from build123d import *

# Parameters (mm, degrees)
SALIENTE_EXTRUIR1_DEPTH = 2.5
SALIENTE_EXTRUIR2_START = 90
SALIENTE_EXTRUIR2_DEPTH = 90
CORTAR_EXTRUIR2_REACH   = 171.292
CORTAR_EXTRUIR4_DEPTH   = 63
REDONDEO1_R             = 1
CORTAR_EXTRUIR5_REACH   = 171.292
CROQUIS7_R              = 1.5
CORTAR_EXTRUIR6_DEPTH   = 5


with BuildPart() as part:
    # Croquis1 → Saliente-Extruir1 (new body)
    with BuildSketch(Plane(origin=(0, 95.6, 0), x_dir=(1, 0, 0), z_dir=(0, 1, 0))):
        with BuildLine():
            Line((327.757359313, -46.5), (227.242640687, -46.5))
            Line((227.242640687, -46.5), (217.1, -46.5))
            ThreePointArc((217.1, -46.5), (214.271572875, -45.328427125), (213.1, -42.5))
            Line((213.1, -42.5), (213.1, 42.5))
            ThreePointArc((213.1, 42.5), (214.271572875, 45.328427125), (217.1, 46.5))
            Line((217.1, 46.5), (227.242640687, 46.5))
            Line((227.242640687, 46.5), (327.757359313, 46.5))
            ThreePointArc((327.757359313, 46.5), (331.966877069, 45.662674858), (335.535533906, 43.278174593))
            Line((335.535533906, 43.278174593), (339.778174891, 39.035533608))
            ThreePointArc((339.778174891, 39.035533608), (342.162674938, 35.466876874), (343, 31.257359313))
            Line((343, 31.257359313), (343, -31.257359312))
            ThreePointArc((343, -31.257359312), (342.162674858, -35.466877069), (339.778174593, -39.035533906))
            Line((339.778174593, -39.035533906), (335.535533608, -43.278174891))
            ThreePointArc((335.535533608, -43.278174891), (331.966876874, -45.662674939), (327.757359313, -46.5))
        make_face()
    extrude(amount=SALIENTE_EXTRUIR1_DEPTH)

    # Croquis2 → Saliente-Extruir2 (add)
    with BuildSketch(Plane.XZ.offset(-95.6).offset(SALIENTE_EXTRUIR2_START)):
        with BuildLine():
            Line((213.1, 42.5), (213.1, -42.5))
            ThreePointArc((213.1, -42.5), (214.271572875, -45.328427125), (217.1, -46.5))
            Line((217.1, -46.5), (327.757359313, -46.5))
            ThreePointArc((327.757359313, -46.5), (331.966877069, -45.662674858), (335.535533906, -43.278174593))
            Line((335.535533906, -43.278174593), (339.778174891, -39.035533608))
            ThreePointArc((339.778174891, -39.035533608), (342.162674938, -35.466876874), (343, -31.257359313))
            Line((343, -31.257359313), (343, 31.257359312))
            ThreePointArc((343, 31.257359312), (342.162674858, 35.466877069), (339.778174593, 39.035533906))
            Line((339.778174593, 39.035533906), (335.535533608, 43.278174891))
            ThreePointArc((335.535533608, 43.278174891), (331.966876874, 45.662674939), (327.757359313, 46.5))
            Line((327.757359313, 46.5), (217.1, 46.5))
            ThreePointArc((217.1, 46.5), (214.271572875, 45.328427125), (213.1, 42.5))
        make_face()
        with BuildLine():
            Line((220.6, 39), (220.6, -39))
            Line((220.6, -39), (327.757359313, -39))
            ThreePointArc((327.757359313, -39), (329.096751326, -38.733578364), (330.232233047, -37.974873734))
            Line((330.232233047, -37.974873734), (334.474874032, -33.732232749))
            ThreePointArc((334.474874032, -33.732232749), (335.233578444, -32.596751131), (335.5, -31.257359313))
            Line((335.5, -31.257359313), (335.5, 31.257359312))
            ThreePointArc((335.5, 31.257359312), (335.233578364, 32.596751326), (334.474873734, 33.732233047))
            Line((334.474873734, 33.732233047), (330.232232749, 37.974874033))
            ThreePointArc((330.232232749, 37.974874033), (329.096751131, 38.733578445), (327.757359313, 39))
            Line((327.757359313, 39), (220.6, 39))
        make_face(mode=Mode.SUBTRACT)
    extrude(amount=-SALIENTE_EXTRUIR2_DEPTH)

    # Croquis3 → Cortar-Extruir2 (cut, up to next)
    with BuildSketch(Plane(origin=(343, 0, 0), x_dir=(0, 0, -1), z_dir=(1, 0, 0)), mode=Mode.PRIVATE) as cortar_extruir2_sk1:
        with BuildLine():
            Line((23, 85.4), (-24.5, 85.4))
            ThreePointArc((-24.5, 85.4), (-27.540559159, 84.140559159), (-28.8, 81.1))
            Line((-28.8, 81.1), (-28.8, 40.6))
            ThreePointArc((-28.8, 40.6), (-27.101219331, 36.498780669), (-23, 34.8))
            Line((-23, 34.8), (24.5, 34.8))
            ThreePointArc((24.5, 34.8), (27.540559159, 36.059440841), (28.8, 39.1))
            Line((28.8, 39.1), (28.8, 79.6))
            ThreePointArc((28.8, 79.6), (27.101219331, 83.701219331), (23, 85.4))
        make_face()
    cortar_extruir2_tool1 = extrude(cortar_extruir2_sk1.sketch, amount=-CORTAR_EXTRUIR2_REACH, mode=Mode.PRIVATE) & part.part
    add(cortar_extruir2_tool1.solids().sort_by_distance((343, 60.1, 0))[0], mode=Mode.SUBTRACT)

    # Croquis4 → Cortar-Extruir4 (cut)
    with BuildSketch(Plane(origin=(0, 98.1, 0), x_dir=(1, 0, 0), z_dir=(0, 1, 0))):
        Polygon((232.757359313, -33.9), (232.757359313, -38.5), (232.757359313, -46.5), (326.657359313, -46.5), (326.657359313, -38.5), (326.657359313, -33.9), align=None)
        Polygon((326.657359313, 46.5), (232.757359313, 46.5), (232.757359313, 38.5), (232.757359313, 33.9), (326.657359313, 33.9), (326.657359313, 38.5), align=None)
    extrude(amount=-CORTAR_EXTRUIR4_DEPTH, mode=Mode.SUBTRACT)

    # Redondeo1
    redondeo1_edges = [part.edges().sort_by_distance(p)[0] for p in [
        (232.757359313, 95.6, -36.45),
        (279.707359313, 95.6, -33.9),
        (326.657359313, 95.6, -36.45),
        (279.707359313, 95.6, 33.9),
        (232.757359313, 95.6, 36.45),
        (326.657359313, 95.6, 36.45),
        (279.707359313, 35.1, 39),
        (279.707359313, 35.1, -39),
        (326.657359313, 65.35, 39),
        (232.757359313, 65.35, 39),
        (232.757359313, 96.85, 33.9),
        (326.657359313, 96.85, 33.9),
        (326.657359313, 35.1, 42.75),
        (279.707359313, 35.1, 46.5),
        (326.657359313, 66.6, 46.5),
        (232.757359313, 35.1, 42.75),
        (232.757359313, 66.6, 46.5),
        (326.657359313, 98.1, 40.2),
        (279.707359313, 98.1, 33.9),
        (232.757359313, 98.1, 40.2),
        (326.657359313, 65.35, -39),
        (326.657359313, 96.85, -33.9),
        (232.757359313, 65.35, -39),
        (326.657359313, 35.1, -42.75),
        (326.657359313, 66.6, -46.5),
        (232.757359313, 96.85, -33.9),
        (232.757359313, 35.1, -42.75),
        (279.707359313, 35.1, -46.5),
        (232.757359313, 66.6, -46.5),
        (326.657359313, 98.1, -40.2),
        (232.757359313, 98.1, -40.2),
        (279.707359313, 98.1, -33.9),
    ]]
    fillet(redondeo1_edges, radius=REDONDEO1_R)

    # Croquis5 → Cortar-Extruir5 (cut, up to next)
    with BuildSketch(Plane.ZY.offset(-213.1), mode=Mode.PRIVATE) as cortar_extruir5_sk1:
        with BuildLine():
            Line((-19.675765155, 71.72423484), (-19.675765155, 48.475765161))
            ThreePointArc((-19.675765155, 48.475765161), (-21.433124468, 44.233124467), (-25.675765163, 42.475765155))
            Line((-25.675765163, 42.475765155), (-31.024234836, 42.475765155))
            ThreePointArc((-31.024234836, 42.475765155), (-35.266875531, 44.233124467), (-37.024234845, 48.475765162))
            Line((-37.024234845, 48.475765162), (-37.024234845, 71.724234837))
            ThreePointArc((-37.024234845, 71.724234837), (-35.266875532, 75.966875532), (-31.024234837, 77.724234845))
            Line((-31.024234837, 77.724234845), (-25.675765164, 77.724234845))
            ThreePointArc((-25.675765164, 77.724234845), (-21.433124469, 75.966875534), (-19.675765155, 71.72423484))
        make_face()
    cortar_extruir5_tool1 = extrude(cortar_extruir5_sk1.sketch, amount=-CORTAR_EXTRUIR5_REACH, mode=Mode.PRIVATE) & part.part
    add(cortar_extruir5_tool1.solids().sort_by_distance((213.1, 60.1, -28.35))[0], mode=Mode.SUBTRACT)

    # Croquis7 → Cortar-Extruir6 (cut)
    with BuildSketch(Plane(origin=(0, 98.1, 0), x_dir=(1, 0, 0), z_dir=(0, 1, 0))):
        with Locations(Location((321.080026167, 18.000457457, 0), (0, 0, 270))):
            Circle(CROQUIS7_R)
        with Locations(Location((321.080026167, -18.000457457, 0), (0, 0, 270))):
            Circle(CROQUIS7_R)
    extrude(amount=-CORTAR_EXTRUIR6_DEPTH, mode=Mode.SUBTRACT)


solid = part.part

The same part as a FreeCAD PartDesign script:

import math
import FreeCAD as App
import Part
import Sketcher

V = App.Vector
Q = App.Units.Quantity


def edges_at(feature, points):
    """Names of the edges that pass closest to the given points."""
    edges = feature.Shape.Edges
    near = lambda p: min(range(len(edges)), key=lambda i: edges[i].distToShape(Part.Vertex(*p))[0])
    return sorted({f"Edge{near(p) + 1}" for p in points})

doc = App.newDocument("Part")
body = doc.addObject("PartDesign::Body", "Body")

# Sketch on XZ plane
sketch1 = body.newObject("Sketcher::SketchObject", "Sketch")
sketch1.AttachmentSupport = (doc.getObject("XZ_Plane"), [""])
sketch1.MapMode = "FlatFace"
sketch1.AttachmentOffset = App.Placement(V(0, 0, -95.6), App.Rotation())
sketch1.addGeometry([
    Part.LineSegment(V(217.1, 46.5, 0), V(327.8, 46.5, 0)),  # 0
    Part.ArcOfCircle(Part.Circle(V(327.8, 35.5, 0), V(0, 0, 1), 11), math.radians(45), math.radians(90)),  # 1
    Part.LineSegment(V(335.5, 43.3, 0), V(339.8, 39, 0)),  # 2
    Part.ArcOfCircle(Part.Circle(V(332, 31.3, 0), V(0, 0, 1), 11), math.radians(0), math.radians(45)),  # 3
    Part.LineSegment(V(343, 31.3, 0), V(343, -31.3, 0)),  # 4
    Part.ArcOfCircle(Part.Circle(V(332, -31.3, 0), V(0, 0, 1), 11), math.radians(-45), math.radians(0)),  # 5
    Part.LineSegment(V(339.8, -39, 0), V(335.5, -43.3, 0)),  # 6
    Part.ArcOfCircle(Part.Circle(V(327.8, -35.5, 0), V(0, 0, 1), 11), math.radians(-90), math.radians(-45)),  # 7
    Part.LineSegment(V(327.8, -46.5, 0), V(217.1, -46.5, 0)),  # 8
    Part.ArcOfCircle(Part.Circle(V(217.1, -42.5, 0), V(0, 0, 1), 4), math.radians(180), math.radians(270)),  # 9
    Part.LineSegment(V(213.1, -42.5, 0), V(213.1, 42.5, 0)),  # 10
    Part.ArcOfCircle(Part.Circle(V(217.1, 42.5, 0), V(0, 0, 1), 4), math.radians(90), math.radians(180)),  # 11
], False)
sketch1.addConstraint([
    Sketcher.Constraint("Tangent", 0, 2, 1, 2),
    Sketcher.Constraint("Tangent", 1, 1, 2, 1),
    Sketcher.Constraint("Tangent", 2, 2, 3, 2),
    Sketcher.Constraint("Tangent", 3, 1, 4, 1),
    Sketcher.Constraint("Tangent", 4, 2, 5, 2),
    Sketcher.Constraint("Tangent", 5, 1, 6, 1),
    Sketcher.Constraint("Tangent", 6, 2, 7, 2),
    Sketcher.Constraint("Tangent", 7, 1, 8, 1),
    Sketcher.Constraint("Tangent", 8, 2, 9, 2),
    Sketcher.Constraint("Tangent", 9, 1, 10, 1),
    Sketcher.Constraint("Tangent", 10, 2, 11, 2),
    Sketcher.Constraint("Tangent", 11, 1, 0, 1),
    Sketcher.Constraint("Horizontal", 0),
    Sketcher.Constraint("Vertical", 4),
    Sketcher.Constraint("Horizontal", 8),
    Sketcher.Constraint("Vertical", 10),
    Sketcher.Constraint("Equal", 1, 3),
    Sketcher.Constraint("Equal", 3, 5),
    Sketcher.Constraint("Equal", 5, 7),
    Sketcher.Constraint("Equal", 9, 11),
    Sketcher.Constraint("Symmetric", 1, 3, 7, 3, -1),
    Sketcher.Constraint("Perpendicular", 2, 6),
    Sketcher.Constraint("Vertical", 2, 2, 5, 1),
    Sketcher.Constraint("Radius", 1, Q("11 mm")),
    Sketcher.Constraint("Radius", 9, Q("4 mm")),
    Sketcher.Constraint("DistanceY", 10, 1, 10, 2, Q("85 mm")),
    Sketcher.Constraint("Distance", 2, Q("6 mm")),
    Sketcher.Constraint("DistanceX", -1, 1, 3, 3, Q("332 mm")),
    Sketcher.Constraint("DistanceX", -1, 1, 9, 3, Q("217.1 mm")),
])
pad1 = body.newObject("PartDesign::Pad", "Pad")
pad1.Profile = sketch1
pad1.Length = 2.5
pad1.Reversed = True

# Sketch on XZ plane
sketch2 = body.newObject("Sketcher::SketchObject", "Sketch001")
sketch2.AttachmentSupport = (doc.getObject("XZ_Plane"), [""])
sketch2.MapMode = "FlatFace"
sketch2.AttachmentOffset = App.Placement(V(0, 0, -5.6), App.Rotation())
sketch2.addGeometry([
    Part.LineSegment(V(213.1, 42.5, 0), V(213.1, -42.5, 0)),  # 0
    Part.ArcOfCircle(Part.Circle(V(217.1, -42.5, 0), V(0, 0, 1), 4), math.radians(180), math.radians(270)),  # 1
    Part.LineSegment(V(217.1, -46.5, 0), V(327.8, -46.5, 0)),  # 2
    Part.ArcOfCircle(Part.Circle(V(327.8, -35.5, 0), V(0, 0, 1), 11), math.radians(-90), math.radians(-45)),  # 3
    Part.LineSegment(V(335.5, -43.3, 0), V(339.8, -39, 0)),  # 4
    Part.ArcOfCircle(Part.Circle(V(332, -31.3, 0), V(0, 0, 1), 11), math.radians(-45), math.radians(0)),  # 5
    Part.LineSegment(V(343, -31.3, 0), V(343, 31.3, 0)),  # 6
    Part.ArcOfCircle(Part.Circle(V(332, 31.3, 0), V(0, 0, 1), 11), math.radians(0), math.radians(45)),  # 7
    Part.LineSegment(V(339.8, 39, 0), V(335.5, 43.3, 0)),  # 8
    Part.ArcOfCircle(Part.Circle(V(327.8, 35.5, 0), V(0, 0, 1), 11), math.radians(45), math.radians(90)),  # 9
    Part.LineSegment(V(327.8, 46.5, 0), V(217.1, 46.5, 0)),  # 10
    Part.ArcOfCircle(Part.Circle(V(217.1, 42.5, 0), V(0, 0, 1), 4), math.radians(90), math.radians(180)),  # 11
    Part.LineSegment(V(220.6, -39, 0), V(220.6, 39, 0)),  # 12
    Part.LineSegment(V(220.6, 39, 0), V(327.8, 39, 0)),  # 13
    Part.ArcOfCircle(Part.Circle(V(327.8, 35.5, 0), V(0, 0, 1), 3.5), math.radians(45), math.radians(90)),  # 14
    Part.LineSegment(V(330.2, 38, 0), V(334.5, 33.7, 0)),  # 15
    Part.ArcOfCircle(Part.Circle(V(332, 31.3, 0), V(0, 0, 1), 3.5), math.radians(0), math.radians(45)),  # 16
    Part.LineSegment(V(335.5, 31.3, 0), V(335.5, -31.3, 0)),  # 17
    Part.ArcOfCircle(Part.Circle(V(332, -31.3, 0), V(0, 0, 1), 3.5), math.radians(-45), math.radians(0)),  # 18
    Part.LineSegment(V(334.5, -33.7, 0), V(330.2, -38, 0)),  # 19
    Part.ArcOfCircle(Part.Circle(V(327.8, -35.5, 0), V(0, 0, 1), 3.5), math.radians(-90), math.radians(-45)),  # 20
    Part.LineSegment(V(327.8, -39, 0), V(220.6, -39, 0)),  # 21
], False)
sketch2.addConstraint([
    Sketcher.Constraint("Tangent", 0, 2, 1, 1),
    Sketcher.Constraint("Tangent", 1, 2, 2, 1),
    Sketcher.Constraint("Tangent", 2, 2, 3, 1),
    Sketcher.Constraint("Tangent", 3, 2, 4, 1),
    Sketcher.Constraint("Tangent", 4, 2, 5, 1),
    Sketcher.Constraint("Tangent", 5, 2, 6, 1),
    Sketcher.Constraint("Tangent", 6, 2, 7, 1),
    Sketcher.Constraint("Tangent", 7, 2, 8, 1),
    Sketcher.Constraint("Tangent", 8, 2, 9, 1),
    Sketcher.Constraint("Tangent", 9, 2, 10, 1),
    Sketcher.Constraint("Tangent", 10, 2, 11, 1),
    Sketcher.Constraint("Tangent", 11, 2, 0, 1),
    Sketcher.Constraint("Coincident", 12, 2, 13, 1),
    Sketcher.Constraint("Tangent", 13, 2, 14, 2),
    Sketcher.Constraint("Tangent", 14, 1, 15, 1),
    Sketcher.Constraint("Tangent", 15, 2, 16, 2),
    Sketcher.Constraint("Tangent", 16, 1, 17, 1),
    Sketcher.Constraint("Tangent", 17, 2, 18, 2),
    Sketcher.Constraint("Tangent", 18, 1, 19, 1),
    Sketcher.Constraint("Tangent", 19, 2, 20, 2),
    Sketcher.Constraint("Tangent", 20, 1, 21, 1),
    Sketcher.Constraint("Coincident", 21, 2, 12, 1),
    Sketcher.Constraint("Vertical", 0),
    Sketcher.Constraint("Horizontal", 2),
    Sketcher.Constraint("Vertical", 6),
    Sketcher.Constraint("Horizontal", 10),
    Sketcher.Constraint("Vertical", 12),
    Sketcher.Constraint("Horizontal", 13),
    Sketcher.Constraint("Vertical", 17),
    Sketcher.Constraint("Horizontal", 21),
    Sketcher.Constraint("Coincident", 14, 3, 9, 3),
    Sketcher.Constraint("Coincident", 16, 3, 7, 3),
    Sketcher.Constraint("Coincident", 18, 3, 5, 3),
    Sketcher.Constraint("Coincident", 20, 3, 3, 3),
    Sketcher.Constraint("Equal", 3, 5),
    Sketcher.Constraint("Equal", 5, 7),
    Sketcher.Constraint("Equal", 7, 9),
    Sketcher.Constraint("Equal", 1, 11),
    Sketcher.Constraint("Equal", 14, 16),
    Sketcher.Constraint("Equal", 18, 20),
    Sketcher.Constraint("Symmetric", 3, 3, 9, 3, -1),
    Sketcher.Constraint("Perpendicular", 4, 8),
    Sketcher.Constraint("Vertical", 4, 2, 7, 2),
    Sketcher.Constraint("Radius", 1, Q("4 mm")),
    Sketcher.Constraint("Radius", 3, Q("11 mm")),
    Sketcher.Constraint("Radius", 14, Q("3.5 mm")),
    Sketcher.Constraint("DistanceY", 0, 2, 0, 1, Q("85 mm")),
    Sketcher.Constraint("Distance", 4, Q("6 mm")),
    Sketcher.Constraint("DistanceX", -1, 1, 5, 3, Q("332 mm")),
    Sketcher.Constraint("DistanceX", -1, 1, 1, 3, Q("217.1 mm")),
    Sketcher.Constraint("DistanceX", -1, 1, 12, 2, Q("220.6 mm")),
])
pad2 = body.newObject("PartDesign::Pad", "Pad001")
pad2.Profile = sketch2
pad2.Length = 90
pad2.Reversed = True

# Sketch on YZ plane
sketch3 = body.newObject("Sketcher::SketchObject", "Sketch002")
sketch3.AttachmentSupport = (doc.getObject("YZ_Plane"), [""])
sketch3.MapMode = "FlatFace"
sketch3.AttachmentOffset = App.Placement(V(0, 0, 343), App.Rotation())
sketch3.addGeometry([
    Part.LineSegment(V(85.4, -23, 0), V(85.4, 24.5, 0)),  # 0
    Part.ArcOfCircle(Part.Circle(V(81.1, 24.5, 0), V(0, 0, 1), 4.3), math.radians(0), math.radians(90)),  # 1
    Part.LineSegment(V(81.1, 28.8, 0), V(40.6, 28.8, 0)),  # 2
    Part.ArcOfCircle(Part.Circle(V(40.6, 23, 0), V(0, 0, 1), 5.8), math.radians(90), math.radians(180)),  # 3
    Part.LineSegment(V(34.8, 23, 0), V(34.8, -24.5, 0)),  # 4
    Part.ArcOfCircle(Part.Circle(V(39.1, -24.5, 0), V(0, 0, 1), 4.3), math.radians(180), math.radians(270)),  # 5
    Part.LineSegment(V(39.1, -28.8, 0), V(79.6, -28.8, 0)),  # 6
    Part.ArcOfCircle(Part.Circle(V(79.6, -23, 0), V(0, 0, 1), 5.8), math.radians(-90), math.radians(0)),  # 7
], False)
sketch3.addConstraint([
    Sketcher.Constraint("Tangent", 0, 2, 1, 1),
    Sketcher.Constraint("Tangent", 1, 2, 2, 1),
    Sketcher.Constraint("Tangent", 2, 2, 3, 1),
    Sketcher.Constraint("Tangent", 3, 2, 4, 1),
    Sketcher.Constraint("Tangent", 4, 2, 5, 1),
    Sketcher.Constraint("Tangent", 5, 2, 6, 1),
    Sketcher.Constraint("Tangent", 6, 2, 7, 1),
    Sketcher.Constraint("Tangent", 7, 2, 0, 1),
    Sketcher.Constraint("Vertical", 0),
    Sketcher.Constraint("Horizontal", 2),
    Sketcher.Constraint("Vertical", 4),
    Sketcher.Constraint("Horizontal", 6),
    Sketcher.Constraint("Equal", 1, 5),
    Sketcher.Constraint("Equal", 3, 7),
    Sketcher.Constraint("Radius", 1, Q("4.3 mm")),
    Sketcher.Constraint("Radius", 3, Q("5.8 mm")),
    Sketcher.Constraint("DistanceX", 2, 2, 2, 1, Q("40.5 mm")),
    Sketcher.Constraint("DistanceY", 0, 1, 0, 2, Q("47.5 mm")),
    Sketcher.Constraint("DistanceY", -1, 1, 3, 3, Q("23 mm")),
    Sketcher.Constraint("DistanceX", -1, 1, 1, 3, Q("81.1 mm")),
])
pocket1 = body.newObject("PartDesign::Pocket", "Pocket")
pocket1.Profile = sketch3
pocket1.Type = "UpToFirst"

# Sketch on XZ plane
sketch4 = body.newObject("Sketcher::SketchObject", "Sketch003")
sketch4.AttachmentSupport = (doc.getObject("XZ_Plane"), [""])
sketch4.MapMode = "FlatFace"
sketch4.AttachmentOffset = App.Placement(V(0, 0, -98.1), App.Rotation())
sketch4.addGeometry([
    Part.LineSegment(V(233, 34, 0), V(233, 46, 0)),  # 0
    Part.LineSegment(V(233, 46, 0), V(327, 46, 0)),  # 1
    Part.LineSegment(V(327, 46, 0), V(327, 34, 0)),  # 2
    Part.LineSegment(V(327, 34, 0), V(233, 34, 0)),  # 3
    Part.LineSegment(V(327, -46, 0), V(233, -46, 0)),  # 4
    Part.LineSegment(V(233, -46, 0), V(233, -34, 0)),  # 5
    Part.LineSegment(V(233, -34, 0), V(327, -34, 0)),  # 6
    Part.LineSegment(V(327, -34, 0), V(327, -46, 0)),  # 7
], False)
sketch4.addConstraint([
    Sketcher.Constraint("Coincident", 0, 2, 1, 1),
    Sketcher.Constraint("Coincident", 1, 2, 2, 1),
    Sketcher.Constraint("Coincident", 2, 2, 3, 1),
    Sketcher.Constraint("Coincident", 3, 2, 0, 1),
    Sketcher.Constraint("Coincident", 4, 2, 5, 1),
    Sketcher.Constraint("Coincident", 5, 2, 6, 1),
    Sketcher.Constraint("Coincident", 6, 2, 7, 1),
    Sketcher.Constraint("Coincident", 7, 2, 4, 1),
    Sketcher.Constraint("Vertical", 0),
    Sketcher.Constraint("Horizontal", 1),
    Sketcher.Constraint("Vertical", 2),
    Sketcher.Constraint("Horizontal", 3),
    Sketcher.Constraint("Horizontal", 4),
    Sketcher.Constraint("Vertical", 5),
    Sketcher.Constraint("Horizontal", 6),
    Sketcher.Constraint("Vertical", 7),
    Sketcher.Constraint("Symmetric", 0, 2, 4, 2, -1),
    Sketcher.Constraint("Symmetric", 2, 2, 6, 2, -1),
    Sketcher.Constraint("DistanceX", 1, 1, 1, 2, Q("93.9 mm")),
    Sketcher.Constraint("DistanceY", 0, 1, 0, 2, Q("12.6 mm")),
    Sketcher.Constraint("DistanceY", 4, 2, 0, 2, Q("93 mm")),
    Sketcher.Constraint("DistanceX", -1, 1, 0, 2, Q("232.757359 mm")),
])
pocket2 = body.newObject("PartDesign::Pocket", "Pocket001")
pocket2.Profile = sketch4
pocket2.Length = 63
pocket2.Reversed = True
doc.recompute()

fillet = body.newObject("PartDesign::Fillet", "Fillet")
fillet.Base = (pocket2, edges_at(pocket2, [
    (232.757, 95.6, -36.45),
    (279.707, 95.6, -33.9),
    (326.657, 95.6, -36.45),
    (279.707, 95.6, 33.9),
    (232.757, 95.6, 36.45),
    (326.657, 95.6, 36.45),
    (279.707, 35.1, 39),
    (279.707, 35.1, -39),
    (326.657, 65.35, 39),
    (232.757, 65.35, 39),
    (232.757, 96.85, 33.9),
    (326.657, 96.85, 33.9),
    (326.657, 35.1, 42.75),
    (279.707, 35.1, 46.5),
    (326.657, 66.6, 46.5),
    (232.757, 35.1, 42.75),
    (232.757, 66.6, 46.5),
    (326.657, 98.1, 40.2),
    (279.707, 98.1, 33.9),
    (232.757, 98.1, 40.2),
    (326.657, 65.35, -39),
    (326.657, 96.85, -33.9),
    (232.757, 65.35, -39),
    (326.657, 35.1, -42.75),
    (326.657, 66.6, -46.5),
    (232.757, 96.85, -33.9),
    (232.757, 35.1, -42.75),
    (279.707, 35.1, -46.5),
    (232.757, 66.6, -46.5),
    (326.657, 98.1, -40.2),
    (232.757, 98.1, -40.2),
    (279.707, 98.1, -33.9),
]))
fillet.Radius = 1

# Sketch on YZ plane
sketch5 = body.newObject("Sketcher::SketchObject", "Sketch004")
sketch5.AttachmentSupport = (doc.getObject("YZ_Plane"), [""])
sketch5.MapMode = "FlatFace"
sketch5.AttachmentOffset = App.Placement(V(0, 0, 213.1), App.Rotation())
sketch5.addGeometry([
    Part.LineSegment(V(48, -20, 0), V(72, -20, 0)),  # 0
    Part.ArcOfCircle(Part.Circle(V(72, -26, 0), V(0, 0, 1), 6), math.radians(0), math.radians(90)),  # 1
    Part.LineSegment(V(78, -26, 0), V(78, -31, 0)),  # 2
    Part.ArcOfCircle(Part.Circle(V(72, -31, 0), V(0, 0, 1), 6), math.radians(-90), math.radians(0)),  # 3
    Part.LineSegment(V(72, -37, 0), V(48, -37, 0)),  # 4
    Part.ArcOfCircle(Part.Circle(V(48, -31, 0), V(0, 0, 1), 6), math.radians(180), math.radians(270)),  # 5
    Part.LineSegment(V(42, -31, 0), V(42, -26, 0)),  # 6
    Part.ArcOfCircle(Part.Circle(V(48, -26, 0), V(0, 0, 1), 6), math.radians(90), math.radians(180)),  # 7
], False)
sketch5.addConstraint([
    Sketcher.Constraint("Tangent", 0, 2, 1, 2),
    Sketcher.Constraint("Tangent", 1, 1, 2, 1),
    Sketcher.Constraint("Tangent", 2, 2, 3, 2),
    Sketcher.Constraint("Tangent", 3, 1, 4, 1),
    Sketcher.Constraint("Tangent", 4, 2, 5, 2),
    Sketcher.Constraint("Tangent", 5, 1, 6, 1),
    Sketcher.Constraint("Tangent", 6, 2, 7, 2),
    Sketcher.Constraint("Tangent", 7, 1, 0, 1),
    Sketcher.Constraint("Horizontal", 0),
    Sketcher.Constraint("Vertical", 2),
    Sketcher.Constraint("Horizontal", 4),
    Sketcher.Constraint("Vertical", 6),
    Sketcher.Constraint("Equal", 1, 3),
    Sketcher.Constraint("Equal", 3, 5),
    Sketcher.Constraint("Equal", 5, 7),
    Sketcher.Constraint("Radius", 1, Q("6 mm")),
    Sketcher.Constraint("DistanceX", 0, 1, 0, 2, Q("23.24847 mm")),
    Sketcher.Constraint("DistanceY", 2, 2, 2, 1, Q("5.34847 mm")),
    Sketcher.Constraint("DistanceX", -1, 1, 1, 3, Q("71.724235 mm")),
    Sketcher.Constraint("DistanceY", 1, 3, -1, 1, Q("25.675765 mm")),
])
pocket3 = body.newObject("PartDesign::Pocket", "Pocket002")
pocket3.Profile = sketch5
pocket3.Type = "UpToFirst"
pocket3.Reversed = True

# Sketch on XZ plane
sketch6 = body.newObject("Sketcher::SketchObject", "Sketch005")
sketch6.AttachmentSupport = (doc.getObject("XZ_Plane"), [""])
sketch6.MapMode = "FlatFace"
sketch6.AttachmentOffset = App.Placement(V(0, 0, -98.1), App.Rotation())
sketch6.addGeometry([
    Part.Circle(V(321.1, -18, 0), V(0, 0, 1), 1.5),
    Part.Circle(V(321.1, 18, 0), V(0, 0, 1), 1.5),
], False)
sketch6.addConstraint([
    Sketcher.Constraint("Equal", 0, 1),
    Sketcher.Constraint("Symmetric", 0, 3, 1, 3, -1),
    Sketcher.Constraint("Diameter", 0, Q("3 mm")),
    Sketcher.Constraint("DistanceX", -1, 1, 0, 3, Q("321.080026 mm")),
    Sketcher.Constraint("DistanceY", 0, 3, -1, 1, Q("18.000457 mm")),
])
pocket4 = body.newObject("PartDesign::Pocket", "Pocket003")
pocket4.Profile = sketch6
pocket4.Length = 5
pocket4.Reversed = True

doc.recompute()
